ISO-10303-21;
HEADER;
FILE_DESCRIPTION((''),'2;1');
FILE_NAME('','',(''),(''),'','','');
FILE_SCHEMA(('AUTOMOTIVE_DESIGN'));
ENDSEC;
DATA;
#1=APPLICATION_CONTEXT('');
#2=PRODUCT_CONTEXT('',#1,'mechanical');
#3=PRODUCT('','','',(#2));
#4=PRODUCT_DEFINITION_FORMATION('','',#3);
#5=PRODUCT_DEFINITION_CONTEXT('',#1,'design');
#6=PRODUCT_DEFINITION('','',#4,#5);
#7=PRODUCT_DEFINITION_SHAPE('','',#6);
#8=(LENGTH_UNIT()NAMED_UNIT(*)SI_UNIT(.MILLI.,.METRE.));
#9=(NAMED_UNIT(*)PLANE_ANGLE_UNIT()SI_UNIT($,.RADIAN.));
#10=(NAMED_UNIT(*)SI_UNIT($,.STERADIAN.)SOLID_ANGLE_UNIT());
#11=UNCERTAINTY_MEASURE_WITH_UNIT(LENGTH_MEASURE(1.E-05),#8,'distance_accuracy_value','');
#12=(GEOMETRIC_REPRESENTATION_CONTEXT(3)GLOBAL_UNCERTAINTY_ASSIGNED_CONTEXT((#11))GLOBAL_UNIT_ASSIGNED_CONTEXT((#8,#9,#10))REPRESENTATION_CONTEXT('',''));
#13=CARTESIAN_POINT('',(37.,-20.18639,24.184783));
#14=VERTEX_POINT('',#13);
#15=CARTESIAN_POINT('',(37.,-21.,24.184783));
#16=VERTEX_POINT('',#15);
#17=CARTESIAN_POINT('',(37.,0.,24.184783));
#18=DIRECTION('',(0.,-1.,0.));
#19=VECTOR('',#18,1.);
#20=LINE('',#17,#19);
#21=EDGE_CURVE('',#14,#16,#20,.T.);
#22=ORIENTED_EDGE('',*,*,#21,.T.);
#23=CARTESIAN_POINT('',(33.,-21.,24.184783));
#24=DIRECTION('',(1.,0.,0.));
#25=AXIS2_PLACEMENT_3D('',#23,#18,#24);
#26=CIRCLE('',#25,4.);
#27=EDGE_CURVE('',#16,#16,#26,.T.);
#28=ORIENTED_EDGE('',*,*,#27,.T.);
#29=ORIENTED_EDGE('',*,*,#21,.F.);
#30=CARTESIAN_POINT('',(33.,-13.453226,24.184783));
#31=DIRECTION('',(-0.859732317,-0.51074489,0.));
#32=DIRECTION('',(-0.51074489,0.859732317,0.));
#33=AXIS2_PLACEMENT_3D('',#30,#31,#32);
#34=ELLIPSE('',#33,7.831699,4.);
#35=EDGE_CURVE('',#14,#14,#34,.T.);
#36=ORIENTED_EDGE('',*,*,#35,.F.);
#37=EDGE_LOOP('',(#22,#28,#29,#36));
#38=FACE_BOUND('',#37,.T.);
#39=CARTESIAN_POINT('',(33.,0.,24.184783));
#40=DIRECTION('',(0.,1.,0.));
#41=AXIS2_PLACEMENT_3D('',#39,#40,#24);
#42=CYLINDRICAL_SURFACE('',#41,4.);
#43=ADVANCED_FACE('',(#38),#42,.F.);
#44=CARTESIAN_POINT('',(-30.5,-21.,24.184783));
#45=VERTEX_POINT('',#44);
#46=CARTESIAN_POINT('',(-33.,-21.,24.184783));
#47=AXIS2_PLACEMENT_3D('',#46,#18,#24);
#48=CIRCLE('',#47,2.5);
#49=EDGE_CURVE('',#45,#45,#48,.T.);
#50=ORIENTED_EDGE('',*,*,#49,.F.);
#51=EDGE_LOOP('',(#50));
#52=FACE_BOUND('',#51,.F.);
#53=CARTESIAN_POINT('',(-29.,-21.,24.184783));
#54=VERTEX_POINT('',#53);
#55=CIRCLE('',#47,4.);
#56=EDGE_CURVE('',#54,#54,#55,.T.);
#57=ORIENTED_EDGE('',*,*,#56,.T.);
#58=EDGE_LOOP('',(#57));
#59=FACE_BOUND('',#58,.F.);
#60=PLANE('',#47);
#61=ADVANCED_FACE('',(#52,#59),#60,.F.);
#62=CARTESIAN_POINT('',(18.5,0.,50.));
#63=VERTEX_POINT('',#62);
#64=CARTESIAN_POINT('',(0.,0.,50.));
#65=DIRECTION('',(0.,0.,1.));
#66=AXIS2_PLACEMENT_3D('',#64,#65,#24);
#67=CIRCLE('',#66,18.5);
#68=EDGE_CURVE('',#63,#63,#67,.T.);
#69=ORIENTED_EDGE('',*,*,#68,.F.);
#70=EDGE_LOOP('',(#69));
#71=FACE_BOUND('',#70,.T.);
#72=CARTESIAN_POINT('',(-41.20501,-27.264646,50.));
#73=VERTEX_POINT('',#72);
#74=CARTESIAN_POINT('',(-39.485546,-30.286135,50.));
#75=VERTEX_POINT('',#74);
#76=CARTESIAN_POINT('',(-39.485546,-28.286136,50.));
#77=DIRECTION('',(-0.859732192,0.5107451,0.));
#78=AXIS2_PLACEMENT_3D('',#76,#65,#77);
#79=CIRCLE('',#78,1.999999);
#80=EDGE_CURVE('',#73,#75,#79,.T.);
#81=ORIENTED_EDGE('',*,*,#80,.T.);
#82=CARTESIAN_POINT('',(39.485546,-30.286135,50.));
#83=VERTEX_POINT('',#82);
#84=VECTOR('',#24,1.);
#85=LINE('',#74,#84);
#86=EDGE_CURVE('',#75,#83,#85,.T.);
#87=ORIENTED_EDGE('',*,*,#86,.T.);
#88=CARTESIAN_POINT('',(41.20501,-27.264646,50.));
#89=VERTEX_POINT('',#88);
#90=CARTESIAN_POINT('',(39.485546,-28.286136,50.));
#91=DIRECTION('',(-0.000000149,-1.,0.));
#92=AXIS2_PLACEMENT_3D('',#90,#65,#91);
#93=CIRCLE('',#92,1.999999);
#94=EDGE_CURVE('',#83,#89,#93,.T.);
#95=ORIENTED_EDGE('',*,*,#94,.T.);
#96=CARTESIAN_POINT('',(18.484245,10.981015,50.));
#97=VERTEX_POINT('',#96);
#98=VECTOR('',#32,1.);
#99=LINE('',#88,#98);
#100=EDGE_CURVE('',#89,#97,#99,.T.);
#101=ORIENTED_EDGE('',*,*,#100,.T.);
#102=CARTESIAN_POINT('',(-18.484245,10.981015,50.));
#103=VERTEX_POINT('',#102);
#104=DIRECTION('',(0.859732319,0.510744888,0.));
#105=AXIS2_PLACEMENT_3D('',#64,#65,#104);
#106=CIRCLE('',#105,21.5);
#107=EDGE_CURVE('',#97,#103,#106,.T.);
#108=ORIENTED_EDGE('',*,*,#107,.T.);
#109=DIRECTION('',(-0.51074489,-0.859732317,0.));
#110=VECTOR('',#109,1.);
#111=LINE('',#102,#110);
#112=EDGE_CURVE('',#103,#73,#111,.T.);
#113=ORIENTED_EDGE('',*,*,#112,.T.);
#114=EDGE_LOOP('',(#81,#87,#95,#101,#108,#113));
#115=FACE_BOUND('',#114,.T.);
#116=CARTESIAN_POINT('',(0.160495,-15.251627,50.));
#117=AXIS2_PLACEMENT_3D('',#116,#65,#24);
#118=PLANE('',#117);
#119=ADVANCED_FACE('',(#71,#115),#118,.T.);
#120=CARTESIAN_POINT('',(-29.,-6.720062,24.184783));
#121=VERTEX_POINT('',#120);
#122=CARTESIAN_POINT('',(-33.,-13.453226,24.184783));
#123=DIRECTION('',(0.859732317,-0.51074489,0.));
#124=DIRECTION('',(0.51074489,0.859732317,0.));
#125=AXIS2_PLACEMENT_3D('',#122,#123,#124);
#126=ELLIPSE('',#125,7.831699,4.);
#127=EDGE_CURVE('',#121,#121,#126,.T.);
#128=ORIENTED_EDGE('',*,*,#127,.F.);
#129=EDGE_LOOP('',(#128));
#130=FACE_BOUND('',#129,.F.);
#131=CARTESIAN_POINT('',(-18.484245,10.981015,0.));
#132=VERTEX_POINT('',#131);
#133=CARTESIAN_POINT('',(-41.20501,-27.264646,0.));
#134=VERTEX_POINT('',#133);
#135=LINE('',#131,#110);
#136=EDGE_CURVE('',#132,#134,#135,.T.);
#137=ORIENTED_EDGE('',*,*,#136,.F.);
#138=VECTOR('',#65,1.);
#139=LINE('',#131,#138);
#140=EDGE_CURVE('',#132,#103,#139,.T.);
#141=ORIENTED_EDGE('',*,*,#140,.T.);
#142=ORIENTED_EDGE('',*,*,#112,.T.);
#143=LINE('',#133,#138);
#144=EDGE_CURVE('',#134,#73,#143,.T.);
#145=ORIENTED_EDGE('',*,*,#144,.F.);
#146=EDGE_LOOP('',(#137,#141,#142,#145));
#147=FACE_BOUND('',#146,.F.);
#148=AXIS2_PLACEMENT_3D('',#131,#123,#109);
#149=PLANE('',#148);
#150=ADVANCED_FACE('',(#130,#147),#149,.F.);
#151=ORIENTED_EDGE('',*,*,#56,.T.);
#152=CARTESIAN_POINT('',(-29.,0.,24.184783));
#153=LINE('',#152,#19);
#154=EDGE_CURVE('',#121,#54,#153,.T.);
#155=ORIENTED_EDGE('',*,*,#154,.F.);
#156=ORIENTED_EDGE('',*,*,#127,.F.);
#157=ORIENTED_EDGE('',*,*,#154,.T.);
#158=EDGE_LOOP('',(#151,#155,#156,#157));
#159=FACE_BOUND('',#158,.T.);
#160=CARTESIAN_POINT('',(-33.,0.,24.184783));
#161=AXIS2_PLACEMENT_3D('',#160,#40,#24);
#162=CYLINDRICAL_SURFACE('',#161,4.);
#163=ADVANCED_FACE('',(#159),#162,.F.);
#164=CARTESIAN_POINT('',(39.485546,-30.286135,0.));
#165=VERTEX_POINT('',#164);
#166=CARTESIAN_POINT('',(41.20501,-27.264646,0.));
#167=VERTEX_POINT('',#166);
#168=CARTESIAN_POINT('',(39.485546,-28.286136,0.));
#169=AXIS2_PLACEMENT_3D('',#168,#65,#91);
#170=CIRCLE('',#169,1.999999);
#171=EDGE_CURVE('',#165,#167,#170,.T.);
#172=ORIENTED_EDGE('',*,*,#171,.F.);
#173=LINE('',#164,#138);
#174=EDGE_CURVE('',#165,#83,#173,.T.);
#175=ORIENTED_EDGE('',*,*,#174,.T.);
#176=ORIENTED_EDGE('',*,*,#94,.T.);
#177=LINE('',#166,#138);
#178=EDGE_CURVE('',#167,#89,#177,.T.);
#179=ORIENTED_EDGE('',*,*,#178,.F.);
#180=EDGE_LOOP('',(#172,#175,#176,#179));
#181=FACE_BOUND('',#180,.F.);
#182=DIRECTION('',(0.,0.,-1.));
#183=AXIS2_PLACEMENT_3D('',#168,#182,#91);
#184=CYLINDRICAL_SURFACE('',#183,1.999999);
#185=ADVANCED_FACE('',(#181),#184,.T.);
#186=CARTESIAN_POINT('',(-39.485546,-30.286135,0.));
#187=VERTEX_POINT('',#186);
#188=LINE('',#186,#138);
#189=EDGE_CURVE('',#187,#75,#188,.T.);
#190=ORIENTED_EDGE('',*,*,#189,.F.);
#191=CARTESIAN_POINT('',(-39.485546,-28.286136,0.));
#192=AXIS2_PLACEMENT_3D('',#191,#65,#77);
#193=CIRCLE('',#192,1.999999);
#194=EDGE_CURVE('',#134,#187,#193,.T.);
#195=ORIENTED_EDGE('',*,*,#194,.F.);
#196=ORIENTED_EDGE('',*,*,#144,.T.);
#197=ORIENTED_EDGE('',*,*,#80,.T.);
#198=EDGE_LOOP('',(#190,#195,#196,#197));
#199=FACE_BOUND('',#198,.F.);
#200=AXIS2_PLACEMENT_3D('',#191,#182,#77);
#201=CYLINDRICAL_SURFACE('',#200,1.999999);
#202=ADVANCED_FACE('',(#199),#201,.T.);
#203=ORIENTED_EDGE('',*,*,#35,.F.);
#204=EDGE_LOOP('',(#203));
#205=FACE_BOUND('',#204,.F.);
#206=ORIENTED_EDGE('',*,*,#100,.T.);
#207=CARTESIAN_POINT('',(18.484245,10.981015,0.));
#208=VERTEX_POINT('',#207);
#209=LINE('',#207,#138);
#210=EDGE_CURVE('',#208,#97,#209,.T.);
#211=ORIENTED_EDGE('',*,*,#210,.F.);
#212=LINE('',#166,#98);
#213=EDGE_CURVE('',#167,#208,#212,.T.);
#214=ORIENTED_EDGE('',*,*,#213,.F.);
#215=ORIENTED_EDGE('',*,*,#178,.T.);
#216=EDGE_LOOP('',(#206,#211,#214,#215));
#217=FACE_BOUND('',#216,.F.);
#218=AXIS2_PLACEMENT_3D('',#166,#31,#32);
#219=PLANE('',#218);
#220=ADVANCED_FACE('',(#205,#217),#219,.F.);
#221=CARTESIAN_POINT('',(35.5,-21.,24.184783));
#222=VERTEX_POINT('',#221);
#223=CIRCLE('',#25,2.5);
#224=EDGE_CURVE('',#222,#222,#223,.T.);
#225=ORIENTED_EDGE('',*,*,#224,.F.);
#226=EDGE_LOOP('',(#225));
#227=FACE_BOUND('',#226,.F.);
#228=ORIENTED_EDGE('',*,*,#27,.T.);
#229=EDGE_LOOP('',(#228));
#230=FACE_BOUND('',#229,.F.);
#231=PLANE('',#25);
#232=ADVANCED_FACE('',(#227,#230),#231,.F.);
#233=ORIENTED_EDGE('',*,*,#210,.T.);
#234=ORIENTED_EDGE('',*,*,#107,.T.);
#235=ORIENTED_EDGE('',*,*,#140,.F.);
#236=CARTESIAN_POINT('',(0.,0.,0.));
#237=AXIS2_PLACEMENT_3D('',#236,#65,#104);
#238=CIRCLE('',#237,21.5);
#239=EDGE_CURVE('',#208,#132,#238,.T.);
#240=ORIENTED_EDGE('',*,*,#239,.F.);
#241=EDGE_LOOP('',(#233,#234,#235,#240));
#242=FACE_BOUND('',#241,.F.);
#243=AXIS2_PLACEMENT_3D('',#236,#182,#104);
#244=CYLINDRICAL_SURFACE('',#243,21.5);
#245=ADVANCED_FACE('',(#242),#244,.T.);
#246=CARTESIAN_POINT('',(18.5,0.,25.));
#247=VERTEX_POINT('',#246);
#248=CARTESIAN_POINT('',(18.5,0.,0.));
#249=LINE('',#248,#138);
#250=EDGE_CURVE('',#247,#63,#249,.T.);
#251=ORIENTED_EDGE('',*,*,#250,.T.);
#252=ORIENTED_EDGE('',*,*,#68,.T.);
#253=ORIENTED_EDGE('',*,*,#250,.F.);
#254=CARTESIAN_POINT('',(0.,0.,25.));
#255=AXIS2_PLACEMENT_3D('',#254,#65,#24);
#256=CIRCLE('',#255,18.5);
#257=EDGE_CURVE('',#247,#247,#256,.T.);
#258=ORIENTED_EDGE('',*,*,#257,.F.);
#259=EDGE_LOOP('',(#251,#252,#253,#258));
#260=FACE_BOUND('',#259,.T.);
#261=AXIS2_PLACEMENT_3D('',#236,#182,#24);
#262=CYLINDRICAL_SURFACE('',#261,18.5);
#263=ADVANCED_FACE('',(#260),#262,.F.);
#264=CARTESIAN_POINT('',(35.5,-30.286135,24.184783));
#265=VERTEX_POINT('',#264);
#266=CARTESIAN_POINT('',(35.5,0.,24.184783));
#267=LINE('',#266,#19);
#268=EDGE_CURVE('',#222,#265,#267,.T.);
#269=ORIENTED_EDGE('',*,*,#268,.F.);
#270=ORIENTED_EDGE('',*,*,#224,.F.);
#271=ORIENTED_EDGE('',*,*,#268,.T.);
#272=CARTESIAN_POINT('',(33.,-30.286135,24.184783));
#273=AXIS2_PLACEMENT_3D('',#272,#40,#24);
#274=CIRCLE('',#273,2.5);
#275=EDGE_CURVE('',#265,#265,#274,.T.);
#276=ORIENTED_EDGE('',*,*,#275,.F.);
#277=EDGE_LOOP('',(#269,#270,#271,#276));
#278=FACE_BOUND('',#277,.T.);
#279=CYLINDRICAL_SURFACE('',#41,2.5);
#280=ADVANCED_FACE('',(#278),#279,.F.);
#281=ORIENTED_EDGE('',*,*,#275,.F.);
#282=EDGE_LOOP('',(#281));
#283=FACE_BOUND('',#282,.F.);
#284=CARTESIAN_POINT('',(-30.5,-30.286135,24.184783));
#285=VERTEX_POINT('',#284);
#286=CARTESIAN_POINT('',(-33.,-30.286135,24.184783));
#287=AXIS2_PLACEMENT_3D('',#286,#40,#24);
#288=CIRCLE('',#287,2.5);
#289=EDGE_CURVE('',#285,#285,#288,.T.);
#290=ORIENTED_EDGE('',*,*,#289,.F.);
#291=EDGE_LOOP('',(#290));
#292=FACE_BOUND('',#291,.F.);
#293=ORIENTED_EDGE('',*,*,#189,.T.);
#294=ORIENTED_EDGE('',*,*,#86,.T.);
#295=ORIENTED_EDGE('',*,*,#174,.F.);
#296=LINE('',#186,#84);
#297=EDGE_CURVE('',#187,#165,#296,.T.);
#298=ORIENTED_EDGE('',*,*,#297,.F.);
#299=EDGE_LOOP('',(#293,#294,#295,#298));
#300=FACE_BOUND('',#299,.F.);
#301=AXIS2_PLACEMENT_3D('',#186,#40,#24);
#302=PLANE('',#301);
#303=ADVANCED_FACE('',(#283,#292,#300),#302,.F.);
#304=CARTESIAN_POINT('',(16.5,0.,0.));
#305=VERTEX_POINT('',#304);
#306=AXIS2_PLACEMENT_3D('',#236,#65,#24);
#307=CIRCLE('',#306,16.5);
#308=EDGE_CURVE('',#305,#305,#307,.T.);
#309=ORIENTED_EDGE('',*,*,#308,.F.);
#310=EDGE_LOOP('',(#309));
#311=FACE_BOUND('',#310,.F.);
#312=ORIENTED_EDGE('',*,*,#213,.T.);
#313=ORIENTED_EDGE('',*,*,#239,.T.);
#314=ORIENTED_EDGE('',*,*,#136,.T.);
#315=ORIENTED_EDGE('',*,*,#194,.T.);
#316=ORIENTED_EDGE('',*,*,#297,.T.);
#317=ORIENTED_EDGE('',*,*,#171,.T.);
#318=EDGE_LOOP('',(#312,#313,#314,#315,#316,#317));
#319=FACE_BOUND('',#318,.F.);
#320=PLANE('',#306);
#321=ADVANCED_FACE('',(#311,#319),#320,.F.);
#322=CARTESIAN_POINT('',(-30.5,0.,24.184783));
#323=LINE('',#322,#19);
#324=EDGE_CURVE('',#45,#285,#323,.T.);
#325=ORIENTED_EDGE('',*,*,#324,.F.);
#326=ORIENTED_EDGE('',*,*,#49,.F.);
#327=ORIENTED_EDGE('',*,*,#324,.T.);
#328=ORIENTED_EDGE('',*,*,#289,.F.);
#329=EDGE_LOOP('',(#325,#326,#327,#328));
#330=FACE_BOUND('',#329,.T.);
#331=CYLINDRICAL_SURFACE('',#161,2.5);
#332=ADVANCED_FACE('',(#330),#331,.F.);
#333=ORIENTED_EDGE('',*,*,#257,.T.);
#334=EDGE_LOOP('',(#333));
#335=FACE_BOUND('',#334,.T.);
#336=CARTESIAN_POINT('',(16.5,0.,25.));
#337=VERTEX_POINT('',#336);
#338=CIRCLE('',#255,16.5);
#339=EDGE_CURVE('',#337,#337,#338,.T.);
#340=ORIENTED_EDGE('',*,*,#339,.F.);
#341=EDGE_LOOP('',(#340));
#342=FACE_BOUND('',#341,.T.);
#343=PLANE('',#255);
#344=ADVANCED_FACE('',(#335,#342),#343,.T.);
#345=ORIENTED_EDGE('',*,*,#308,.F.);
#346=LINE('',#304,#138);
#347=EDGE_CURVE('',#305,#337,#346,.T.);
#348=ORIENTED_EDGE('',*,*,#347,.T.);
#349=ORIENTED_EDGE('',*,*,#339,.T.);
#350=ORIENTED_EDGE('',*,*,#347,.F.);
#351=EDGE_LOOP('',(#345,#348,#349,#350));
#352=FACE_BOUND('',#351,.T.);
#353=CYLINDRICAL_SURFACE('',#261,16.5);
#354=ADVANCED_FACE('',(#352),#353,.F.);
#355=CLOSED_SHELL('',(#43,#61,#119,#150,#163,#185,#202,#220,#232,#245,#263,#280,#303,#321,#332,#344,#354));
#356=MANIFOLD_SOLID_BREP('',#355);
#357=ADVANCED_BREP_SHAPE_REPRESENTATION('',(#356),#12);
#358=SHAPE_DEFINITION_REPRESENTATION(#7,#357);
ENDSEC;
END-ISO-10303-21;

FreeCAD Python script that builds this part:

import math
import FreeCAD as App
import Part
import Sketcher
from FreeCAD import Vector

doc = App.newDocument("Part")
body = doc.addObject("PartDesign::Body", "Body")

# Sketch on XY plane
sketch1 = body.newObject("Sketcher::SketchObject", "Sketch")
sketch1.AttachmentSupport = (doc.getObject("XY_Plane"), [""])
sketch1.MapMode = "FlatFace"
sketch1.addGeometry([
    Part.LineSegment(Vector(-18.5, 11, 0), Vector(-41.2, -27.3, 0)),  # 0
    Part.ArcOfCircle(Part.Circle(Vector(-39.5, -28.3, 0), Vector(0, 0, 1), 2), math.radians(149), math.radians(270)),  # 1
    Part.LineSegment(Vector(-39.5, -30.3, 0), Vector(39.5, -30.3, 0)),  # 2
    Part.ArcOfCircle(Part.Circle(Vector(39.5, -28.3, 0), Vector(0, 0, 1), 2), math.radians(-90), math.radians(31)),  # 3
    Part.LineSegment(Vector(41.2, -27.3, 0), Vector(18.5, 11, 0)),  # 4
    Part.ArcOfCircle(Part.Circle(Vector(0, 0, 0), Vector(0, 0, 1), 21.5), math.radians(31), math.radians(149)),  # 5
    Part.Circle(Vector(0, 0, 0), Vector(0, 0, 1), 18.5),  # 6
], False)
sketch1.addConstraint([
    Sketcher.Constraint("Tangent", 0, 2, 1, 1),
    Sketcher.Constraint("Tangent", 1, 2, 2, 1),
    Sketcher.Constraint("Tangent", 2, 2, 3, 1),
    Sketcher.Constraint("Tangent", 3, 2, 4, 1),
    Sketcher.Constraint("Tangent", 4, 2, 5, 1),
    Sketcher.Constraint("Tangent", 5, 2, 0, 1),
    Sketcher.Constraint("Horizontal", 2),
    Sketcher.Constraint("Coincident", 5, 3, -1, 1),
    Sketcher.Constraint("Coincident", 6, 3, -1, 1),
    Sketcher.Constraint("Equal", 1, 3),
    Sketcher.Constraint("Horizontal", 0, 2, 3, 2),
    Sketcher.Constraint("Diameter", 6, 37.0),
    Sketcher.Constraint("Radius", 1, 1.999999),
    Sketcher.Constraint("Radius", 5, 21.5),
    Sketcher.Constraint("DistanceX", 2, 1, 2, 2, 78.971092),
    Sketcher.Constraint("DistanceX", 4, 2, 3, 3, 21.001301),
])
pad1 = body.newObject("PartDesign::Pad", "Pad")
pad1.Profile = sketch1
pad1.Length = 50

# Sketch on XY plane
sketch2 = body.newObject("Sketcher::SketchObject", "Sketch001")
sketch2.AttachmentSupport = (doc.getObject("XY_Plane"), [""])
sketch2.MapMode = "FlatFace"
sketch2.addGeometry([
    Part.Circle(Vector(0, 0, 0), Vector(0, 0, 1), 18),
    Part.Circle(Vector(0, 0, 0), Vector(0, 0, 1), 16),
], False)
sketch2.addConstraint([
    Sketcher.Constraint("Coincident", 0, 3, -1, 1),
    Sketcher.Constraint("Coincident", 1, 3, -1, 1),
    Sketcher.Constraint("Diameter", 0, 37.0),
    Sketcher.Constraint("Diameter", 1, 33.0),
])
pad2 = body.newObject("PartDesign::Pad", "Pad001")
pad2.Profile = sketch2
pad2.Length = 25

# Sketch on XZ plane
sketch3 = body.newObject("Sketcher::SketchObject", "Sketch002")
sketch3.AttachmentSupport = (doc.getObject("XZ_Plane"), [""])
sketch3.MapMode = "FlatFace"
sketch3.addGeometry([
    Part.Circle(Vector(33, 24.2, 0), Vector(0, 0, 1), 2.5),
    Part.Circle(Vector(-33, 24.2, 0), Vector(0, 0, 1), 2.5),
], False)
sketch3.addConstraint([
    Sketcher.Constraint("Equal", 0, 1),
    Sketcher.Constraint("Symmetric", 0, 3, 1, 3, -2),
    Sketcher.Constraint("Diameter", 0, 5.0),
    Sketcher.Constraint("DistanceX", -1, 1, 0, 3, 33.0),
    Sketcher.Constraint("DistanceY", -1, 1, 0, 3, 24.184783),
])
pocket1 = body.newObject("PartDesign::Pocket", "Pocket")
pocket1.Profile = sketch3
pocket1.Length = 35
pocket1.Reversed = True

# Sketch on XZ plane
sketch4 = body.newObject("Sketcher::SketchObject", "Sketch003")
sketch4.AttachmentSupport = (doc.getObject("XZ_Plane"), [""])
sketch4.MapMode = "FlatFace"
sketch4.addGeometry([
    Part.Circle(Vector(33, 24.2, 0), Vector(0, 0, 1), 4),
    Part.Circle(Vector(33, 24.2, 0), Vector(0, 0, 1), 2.5),
    Part.Circle(Vector(-33, 24.2, 0), Vector(0, 0, 1), 4),
    Part.Circle(Vector(-33, 24.2, 0), Vector(0, 0, 1), 2.5),
], False)
sketch4.addConstraint([
    Sketcher.Constraint("Coincident", 1, 3, 0, 3),
    Sketcher.Constraint("Coincident", 3, 3, 2, 3),
    Sketcher.Constraint("Equal", 0, 2),
    Sketcher.Constraint("Equal", 1, 3),
    Sketcher.Constraint("Symmetric", 0, 3, 2, 3, -2),
    Sketcher.Constraint("Diameter", 0, 8.0),
    Sketcher.Constraint("Diameter", 1, 5.0),
    Sketcher.Constraint("DistanceX", -1, 1, 0, 3, 33.0),
    Sketcher.Constraint("DistanceY", -1, 1, 0, 3, 24.184783),
])
pocket2 = body.newObject("PartDesign::Pocket", "Pocket001")
pocket2.Profile = sketch4
pocket2.Length = 21
pocket2.Reversed = True

doc.recompute()
